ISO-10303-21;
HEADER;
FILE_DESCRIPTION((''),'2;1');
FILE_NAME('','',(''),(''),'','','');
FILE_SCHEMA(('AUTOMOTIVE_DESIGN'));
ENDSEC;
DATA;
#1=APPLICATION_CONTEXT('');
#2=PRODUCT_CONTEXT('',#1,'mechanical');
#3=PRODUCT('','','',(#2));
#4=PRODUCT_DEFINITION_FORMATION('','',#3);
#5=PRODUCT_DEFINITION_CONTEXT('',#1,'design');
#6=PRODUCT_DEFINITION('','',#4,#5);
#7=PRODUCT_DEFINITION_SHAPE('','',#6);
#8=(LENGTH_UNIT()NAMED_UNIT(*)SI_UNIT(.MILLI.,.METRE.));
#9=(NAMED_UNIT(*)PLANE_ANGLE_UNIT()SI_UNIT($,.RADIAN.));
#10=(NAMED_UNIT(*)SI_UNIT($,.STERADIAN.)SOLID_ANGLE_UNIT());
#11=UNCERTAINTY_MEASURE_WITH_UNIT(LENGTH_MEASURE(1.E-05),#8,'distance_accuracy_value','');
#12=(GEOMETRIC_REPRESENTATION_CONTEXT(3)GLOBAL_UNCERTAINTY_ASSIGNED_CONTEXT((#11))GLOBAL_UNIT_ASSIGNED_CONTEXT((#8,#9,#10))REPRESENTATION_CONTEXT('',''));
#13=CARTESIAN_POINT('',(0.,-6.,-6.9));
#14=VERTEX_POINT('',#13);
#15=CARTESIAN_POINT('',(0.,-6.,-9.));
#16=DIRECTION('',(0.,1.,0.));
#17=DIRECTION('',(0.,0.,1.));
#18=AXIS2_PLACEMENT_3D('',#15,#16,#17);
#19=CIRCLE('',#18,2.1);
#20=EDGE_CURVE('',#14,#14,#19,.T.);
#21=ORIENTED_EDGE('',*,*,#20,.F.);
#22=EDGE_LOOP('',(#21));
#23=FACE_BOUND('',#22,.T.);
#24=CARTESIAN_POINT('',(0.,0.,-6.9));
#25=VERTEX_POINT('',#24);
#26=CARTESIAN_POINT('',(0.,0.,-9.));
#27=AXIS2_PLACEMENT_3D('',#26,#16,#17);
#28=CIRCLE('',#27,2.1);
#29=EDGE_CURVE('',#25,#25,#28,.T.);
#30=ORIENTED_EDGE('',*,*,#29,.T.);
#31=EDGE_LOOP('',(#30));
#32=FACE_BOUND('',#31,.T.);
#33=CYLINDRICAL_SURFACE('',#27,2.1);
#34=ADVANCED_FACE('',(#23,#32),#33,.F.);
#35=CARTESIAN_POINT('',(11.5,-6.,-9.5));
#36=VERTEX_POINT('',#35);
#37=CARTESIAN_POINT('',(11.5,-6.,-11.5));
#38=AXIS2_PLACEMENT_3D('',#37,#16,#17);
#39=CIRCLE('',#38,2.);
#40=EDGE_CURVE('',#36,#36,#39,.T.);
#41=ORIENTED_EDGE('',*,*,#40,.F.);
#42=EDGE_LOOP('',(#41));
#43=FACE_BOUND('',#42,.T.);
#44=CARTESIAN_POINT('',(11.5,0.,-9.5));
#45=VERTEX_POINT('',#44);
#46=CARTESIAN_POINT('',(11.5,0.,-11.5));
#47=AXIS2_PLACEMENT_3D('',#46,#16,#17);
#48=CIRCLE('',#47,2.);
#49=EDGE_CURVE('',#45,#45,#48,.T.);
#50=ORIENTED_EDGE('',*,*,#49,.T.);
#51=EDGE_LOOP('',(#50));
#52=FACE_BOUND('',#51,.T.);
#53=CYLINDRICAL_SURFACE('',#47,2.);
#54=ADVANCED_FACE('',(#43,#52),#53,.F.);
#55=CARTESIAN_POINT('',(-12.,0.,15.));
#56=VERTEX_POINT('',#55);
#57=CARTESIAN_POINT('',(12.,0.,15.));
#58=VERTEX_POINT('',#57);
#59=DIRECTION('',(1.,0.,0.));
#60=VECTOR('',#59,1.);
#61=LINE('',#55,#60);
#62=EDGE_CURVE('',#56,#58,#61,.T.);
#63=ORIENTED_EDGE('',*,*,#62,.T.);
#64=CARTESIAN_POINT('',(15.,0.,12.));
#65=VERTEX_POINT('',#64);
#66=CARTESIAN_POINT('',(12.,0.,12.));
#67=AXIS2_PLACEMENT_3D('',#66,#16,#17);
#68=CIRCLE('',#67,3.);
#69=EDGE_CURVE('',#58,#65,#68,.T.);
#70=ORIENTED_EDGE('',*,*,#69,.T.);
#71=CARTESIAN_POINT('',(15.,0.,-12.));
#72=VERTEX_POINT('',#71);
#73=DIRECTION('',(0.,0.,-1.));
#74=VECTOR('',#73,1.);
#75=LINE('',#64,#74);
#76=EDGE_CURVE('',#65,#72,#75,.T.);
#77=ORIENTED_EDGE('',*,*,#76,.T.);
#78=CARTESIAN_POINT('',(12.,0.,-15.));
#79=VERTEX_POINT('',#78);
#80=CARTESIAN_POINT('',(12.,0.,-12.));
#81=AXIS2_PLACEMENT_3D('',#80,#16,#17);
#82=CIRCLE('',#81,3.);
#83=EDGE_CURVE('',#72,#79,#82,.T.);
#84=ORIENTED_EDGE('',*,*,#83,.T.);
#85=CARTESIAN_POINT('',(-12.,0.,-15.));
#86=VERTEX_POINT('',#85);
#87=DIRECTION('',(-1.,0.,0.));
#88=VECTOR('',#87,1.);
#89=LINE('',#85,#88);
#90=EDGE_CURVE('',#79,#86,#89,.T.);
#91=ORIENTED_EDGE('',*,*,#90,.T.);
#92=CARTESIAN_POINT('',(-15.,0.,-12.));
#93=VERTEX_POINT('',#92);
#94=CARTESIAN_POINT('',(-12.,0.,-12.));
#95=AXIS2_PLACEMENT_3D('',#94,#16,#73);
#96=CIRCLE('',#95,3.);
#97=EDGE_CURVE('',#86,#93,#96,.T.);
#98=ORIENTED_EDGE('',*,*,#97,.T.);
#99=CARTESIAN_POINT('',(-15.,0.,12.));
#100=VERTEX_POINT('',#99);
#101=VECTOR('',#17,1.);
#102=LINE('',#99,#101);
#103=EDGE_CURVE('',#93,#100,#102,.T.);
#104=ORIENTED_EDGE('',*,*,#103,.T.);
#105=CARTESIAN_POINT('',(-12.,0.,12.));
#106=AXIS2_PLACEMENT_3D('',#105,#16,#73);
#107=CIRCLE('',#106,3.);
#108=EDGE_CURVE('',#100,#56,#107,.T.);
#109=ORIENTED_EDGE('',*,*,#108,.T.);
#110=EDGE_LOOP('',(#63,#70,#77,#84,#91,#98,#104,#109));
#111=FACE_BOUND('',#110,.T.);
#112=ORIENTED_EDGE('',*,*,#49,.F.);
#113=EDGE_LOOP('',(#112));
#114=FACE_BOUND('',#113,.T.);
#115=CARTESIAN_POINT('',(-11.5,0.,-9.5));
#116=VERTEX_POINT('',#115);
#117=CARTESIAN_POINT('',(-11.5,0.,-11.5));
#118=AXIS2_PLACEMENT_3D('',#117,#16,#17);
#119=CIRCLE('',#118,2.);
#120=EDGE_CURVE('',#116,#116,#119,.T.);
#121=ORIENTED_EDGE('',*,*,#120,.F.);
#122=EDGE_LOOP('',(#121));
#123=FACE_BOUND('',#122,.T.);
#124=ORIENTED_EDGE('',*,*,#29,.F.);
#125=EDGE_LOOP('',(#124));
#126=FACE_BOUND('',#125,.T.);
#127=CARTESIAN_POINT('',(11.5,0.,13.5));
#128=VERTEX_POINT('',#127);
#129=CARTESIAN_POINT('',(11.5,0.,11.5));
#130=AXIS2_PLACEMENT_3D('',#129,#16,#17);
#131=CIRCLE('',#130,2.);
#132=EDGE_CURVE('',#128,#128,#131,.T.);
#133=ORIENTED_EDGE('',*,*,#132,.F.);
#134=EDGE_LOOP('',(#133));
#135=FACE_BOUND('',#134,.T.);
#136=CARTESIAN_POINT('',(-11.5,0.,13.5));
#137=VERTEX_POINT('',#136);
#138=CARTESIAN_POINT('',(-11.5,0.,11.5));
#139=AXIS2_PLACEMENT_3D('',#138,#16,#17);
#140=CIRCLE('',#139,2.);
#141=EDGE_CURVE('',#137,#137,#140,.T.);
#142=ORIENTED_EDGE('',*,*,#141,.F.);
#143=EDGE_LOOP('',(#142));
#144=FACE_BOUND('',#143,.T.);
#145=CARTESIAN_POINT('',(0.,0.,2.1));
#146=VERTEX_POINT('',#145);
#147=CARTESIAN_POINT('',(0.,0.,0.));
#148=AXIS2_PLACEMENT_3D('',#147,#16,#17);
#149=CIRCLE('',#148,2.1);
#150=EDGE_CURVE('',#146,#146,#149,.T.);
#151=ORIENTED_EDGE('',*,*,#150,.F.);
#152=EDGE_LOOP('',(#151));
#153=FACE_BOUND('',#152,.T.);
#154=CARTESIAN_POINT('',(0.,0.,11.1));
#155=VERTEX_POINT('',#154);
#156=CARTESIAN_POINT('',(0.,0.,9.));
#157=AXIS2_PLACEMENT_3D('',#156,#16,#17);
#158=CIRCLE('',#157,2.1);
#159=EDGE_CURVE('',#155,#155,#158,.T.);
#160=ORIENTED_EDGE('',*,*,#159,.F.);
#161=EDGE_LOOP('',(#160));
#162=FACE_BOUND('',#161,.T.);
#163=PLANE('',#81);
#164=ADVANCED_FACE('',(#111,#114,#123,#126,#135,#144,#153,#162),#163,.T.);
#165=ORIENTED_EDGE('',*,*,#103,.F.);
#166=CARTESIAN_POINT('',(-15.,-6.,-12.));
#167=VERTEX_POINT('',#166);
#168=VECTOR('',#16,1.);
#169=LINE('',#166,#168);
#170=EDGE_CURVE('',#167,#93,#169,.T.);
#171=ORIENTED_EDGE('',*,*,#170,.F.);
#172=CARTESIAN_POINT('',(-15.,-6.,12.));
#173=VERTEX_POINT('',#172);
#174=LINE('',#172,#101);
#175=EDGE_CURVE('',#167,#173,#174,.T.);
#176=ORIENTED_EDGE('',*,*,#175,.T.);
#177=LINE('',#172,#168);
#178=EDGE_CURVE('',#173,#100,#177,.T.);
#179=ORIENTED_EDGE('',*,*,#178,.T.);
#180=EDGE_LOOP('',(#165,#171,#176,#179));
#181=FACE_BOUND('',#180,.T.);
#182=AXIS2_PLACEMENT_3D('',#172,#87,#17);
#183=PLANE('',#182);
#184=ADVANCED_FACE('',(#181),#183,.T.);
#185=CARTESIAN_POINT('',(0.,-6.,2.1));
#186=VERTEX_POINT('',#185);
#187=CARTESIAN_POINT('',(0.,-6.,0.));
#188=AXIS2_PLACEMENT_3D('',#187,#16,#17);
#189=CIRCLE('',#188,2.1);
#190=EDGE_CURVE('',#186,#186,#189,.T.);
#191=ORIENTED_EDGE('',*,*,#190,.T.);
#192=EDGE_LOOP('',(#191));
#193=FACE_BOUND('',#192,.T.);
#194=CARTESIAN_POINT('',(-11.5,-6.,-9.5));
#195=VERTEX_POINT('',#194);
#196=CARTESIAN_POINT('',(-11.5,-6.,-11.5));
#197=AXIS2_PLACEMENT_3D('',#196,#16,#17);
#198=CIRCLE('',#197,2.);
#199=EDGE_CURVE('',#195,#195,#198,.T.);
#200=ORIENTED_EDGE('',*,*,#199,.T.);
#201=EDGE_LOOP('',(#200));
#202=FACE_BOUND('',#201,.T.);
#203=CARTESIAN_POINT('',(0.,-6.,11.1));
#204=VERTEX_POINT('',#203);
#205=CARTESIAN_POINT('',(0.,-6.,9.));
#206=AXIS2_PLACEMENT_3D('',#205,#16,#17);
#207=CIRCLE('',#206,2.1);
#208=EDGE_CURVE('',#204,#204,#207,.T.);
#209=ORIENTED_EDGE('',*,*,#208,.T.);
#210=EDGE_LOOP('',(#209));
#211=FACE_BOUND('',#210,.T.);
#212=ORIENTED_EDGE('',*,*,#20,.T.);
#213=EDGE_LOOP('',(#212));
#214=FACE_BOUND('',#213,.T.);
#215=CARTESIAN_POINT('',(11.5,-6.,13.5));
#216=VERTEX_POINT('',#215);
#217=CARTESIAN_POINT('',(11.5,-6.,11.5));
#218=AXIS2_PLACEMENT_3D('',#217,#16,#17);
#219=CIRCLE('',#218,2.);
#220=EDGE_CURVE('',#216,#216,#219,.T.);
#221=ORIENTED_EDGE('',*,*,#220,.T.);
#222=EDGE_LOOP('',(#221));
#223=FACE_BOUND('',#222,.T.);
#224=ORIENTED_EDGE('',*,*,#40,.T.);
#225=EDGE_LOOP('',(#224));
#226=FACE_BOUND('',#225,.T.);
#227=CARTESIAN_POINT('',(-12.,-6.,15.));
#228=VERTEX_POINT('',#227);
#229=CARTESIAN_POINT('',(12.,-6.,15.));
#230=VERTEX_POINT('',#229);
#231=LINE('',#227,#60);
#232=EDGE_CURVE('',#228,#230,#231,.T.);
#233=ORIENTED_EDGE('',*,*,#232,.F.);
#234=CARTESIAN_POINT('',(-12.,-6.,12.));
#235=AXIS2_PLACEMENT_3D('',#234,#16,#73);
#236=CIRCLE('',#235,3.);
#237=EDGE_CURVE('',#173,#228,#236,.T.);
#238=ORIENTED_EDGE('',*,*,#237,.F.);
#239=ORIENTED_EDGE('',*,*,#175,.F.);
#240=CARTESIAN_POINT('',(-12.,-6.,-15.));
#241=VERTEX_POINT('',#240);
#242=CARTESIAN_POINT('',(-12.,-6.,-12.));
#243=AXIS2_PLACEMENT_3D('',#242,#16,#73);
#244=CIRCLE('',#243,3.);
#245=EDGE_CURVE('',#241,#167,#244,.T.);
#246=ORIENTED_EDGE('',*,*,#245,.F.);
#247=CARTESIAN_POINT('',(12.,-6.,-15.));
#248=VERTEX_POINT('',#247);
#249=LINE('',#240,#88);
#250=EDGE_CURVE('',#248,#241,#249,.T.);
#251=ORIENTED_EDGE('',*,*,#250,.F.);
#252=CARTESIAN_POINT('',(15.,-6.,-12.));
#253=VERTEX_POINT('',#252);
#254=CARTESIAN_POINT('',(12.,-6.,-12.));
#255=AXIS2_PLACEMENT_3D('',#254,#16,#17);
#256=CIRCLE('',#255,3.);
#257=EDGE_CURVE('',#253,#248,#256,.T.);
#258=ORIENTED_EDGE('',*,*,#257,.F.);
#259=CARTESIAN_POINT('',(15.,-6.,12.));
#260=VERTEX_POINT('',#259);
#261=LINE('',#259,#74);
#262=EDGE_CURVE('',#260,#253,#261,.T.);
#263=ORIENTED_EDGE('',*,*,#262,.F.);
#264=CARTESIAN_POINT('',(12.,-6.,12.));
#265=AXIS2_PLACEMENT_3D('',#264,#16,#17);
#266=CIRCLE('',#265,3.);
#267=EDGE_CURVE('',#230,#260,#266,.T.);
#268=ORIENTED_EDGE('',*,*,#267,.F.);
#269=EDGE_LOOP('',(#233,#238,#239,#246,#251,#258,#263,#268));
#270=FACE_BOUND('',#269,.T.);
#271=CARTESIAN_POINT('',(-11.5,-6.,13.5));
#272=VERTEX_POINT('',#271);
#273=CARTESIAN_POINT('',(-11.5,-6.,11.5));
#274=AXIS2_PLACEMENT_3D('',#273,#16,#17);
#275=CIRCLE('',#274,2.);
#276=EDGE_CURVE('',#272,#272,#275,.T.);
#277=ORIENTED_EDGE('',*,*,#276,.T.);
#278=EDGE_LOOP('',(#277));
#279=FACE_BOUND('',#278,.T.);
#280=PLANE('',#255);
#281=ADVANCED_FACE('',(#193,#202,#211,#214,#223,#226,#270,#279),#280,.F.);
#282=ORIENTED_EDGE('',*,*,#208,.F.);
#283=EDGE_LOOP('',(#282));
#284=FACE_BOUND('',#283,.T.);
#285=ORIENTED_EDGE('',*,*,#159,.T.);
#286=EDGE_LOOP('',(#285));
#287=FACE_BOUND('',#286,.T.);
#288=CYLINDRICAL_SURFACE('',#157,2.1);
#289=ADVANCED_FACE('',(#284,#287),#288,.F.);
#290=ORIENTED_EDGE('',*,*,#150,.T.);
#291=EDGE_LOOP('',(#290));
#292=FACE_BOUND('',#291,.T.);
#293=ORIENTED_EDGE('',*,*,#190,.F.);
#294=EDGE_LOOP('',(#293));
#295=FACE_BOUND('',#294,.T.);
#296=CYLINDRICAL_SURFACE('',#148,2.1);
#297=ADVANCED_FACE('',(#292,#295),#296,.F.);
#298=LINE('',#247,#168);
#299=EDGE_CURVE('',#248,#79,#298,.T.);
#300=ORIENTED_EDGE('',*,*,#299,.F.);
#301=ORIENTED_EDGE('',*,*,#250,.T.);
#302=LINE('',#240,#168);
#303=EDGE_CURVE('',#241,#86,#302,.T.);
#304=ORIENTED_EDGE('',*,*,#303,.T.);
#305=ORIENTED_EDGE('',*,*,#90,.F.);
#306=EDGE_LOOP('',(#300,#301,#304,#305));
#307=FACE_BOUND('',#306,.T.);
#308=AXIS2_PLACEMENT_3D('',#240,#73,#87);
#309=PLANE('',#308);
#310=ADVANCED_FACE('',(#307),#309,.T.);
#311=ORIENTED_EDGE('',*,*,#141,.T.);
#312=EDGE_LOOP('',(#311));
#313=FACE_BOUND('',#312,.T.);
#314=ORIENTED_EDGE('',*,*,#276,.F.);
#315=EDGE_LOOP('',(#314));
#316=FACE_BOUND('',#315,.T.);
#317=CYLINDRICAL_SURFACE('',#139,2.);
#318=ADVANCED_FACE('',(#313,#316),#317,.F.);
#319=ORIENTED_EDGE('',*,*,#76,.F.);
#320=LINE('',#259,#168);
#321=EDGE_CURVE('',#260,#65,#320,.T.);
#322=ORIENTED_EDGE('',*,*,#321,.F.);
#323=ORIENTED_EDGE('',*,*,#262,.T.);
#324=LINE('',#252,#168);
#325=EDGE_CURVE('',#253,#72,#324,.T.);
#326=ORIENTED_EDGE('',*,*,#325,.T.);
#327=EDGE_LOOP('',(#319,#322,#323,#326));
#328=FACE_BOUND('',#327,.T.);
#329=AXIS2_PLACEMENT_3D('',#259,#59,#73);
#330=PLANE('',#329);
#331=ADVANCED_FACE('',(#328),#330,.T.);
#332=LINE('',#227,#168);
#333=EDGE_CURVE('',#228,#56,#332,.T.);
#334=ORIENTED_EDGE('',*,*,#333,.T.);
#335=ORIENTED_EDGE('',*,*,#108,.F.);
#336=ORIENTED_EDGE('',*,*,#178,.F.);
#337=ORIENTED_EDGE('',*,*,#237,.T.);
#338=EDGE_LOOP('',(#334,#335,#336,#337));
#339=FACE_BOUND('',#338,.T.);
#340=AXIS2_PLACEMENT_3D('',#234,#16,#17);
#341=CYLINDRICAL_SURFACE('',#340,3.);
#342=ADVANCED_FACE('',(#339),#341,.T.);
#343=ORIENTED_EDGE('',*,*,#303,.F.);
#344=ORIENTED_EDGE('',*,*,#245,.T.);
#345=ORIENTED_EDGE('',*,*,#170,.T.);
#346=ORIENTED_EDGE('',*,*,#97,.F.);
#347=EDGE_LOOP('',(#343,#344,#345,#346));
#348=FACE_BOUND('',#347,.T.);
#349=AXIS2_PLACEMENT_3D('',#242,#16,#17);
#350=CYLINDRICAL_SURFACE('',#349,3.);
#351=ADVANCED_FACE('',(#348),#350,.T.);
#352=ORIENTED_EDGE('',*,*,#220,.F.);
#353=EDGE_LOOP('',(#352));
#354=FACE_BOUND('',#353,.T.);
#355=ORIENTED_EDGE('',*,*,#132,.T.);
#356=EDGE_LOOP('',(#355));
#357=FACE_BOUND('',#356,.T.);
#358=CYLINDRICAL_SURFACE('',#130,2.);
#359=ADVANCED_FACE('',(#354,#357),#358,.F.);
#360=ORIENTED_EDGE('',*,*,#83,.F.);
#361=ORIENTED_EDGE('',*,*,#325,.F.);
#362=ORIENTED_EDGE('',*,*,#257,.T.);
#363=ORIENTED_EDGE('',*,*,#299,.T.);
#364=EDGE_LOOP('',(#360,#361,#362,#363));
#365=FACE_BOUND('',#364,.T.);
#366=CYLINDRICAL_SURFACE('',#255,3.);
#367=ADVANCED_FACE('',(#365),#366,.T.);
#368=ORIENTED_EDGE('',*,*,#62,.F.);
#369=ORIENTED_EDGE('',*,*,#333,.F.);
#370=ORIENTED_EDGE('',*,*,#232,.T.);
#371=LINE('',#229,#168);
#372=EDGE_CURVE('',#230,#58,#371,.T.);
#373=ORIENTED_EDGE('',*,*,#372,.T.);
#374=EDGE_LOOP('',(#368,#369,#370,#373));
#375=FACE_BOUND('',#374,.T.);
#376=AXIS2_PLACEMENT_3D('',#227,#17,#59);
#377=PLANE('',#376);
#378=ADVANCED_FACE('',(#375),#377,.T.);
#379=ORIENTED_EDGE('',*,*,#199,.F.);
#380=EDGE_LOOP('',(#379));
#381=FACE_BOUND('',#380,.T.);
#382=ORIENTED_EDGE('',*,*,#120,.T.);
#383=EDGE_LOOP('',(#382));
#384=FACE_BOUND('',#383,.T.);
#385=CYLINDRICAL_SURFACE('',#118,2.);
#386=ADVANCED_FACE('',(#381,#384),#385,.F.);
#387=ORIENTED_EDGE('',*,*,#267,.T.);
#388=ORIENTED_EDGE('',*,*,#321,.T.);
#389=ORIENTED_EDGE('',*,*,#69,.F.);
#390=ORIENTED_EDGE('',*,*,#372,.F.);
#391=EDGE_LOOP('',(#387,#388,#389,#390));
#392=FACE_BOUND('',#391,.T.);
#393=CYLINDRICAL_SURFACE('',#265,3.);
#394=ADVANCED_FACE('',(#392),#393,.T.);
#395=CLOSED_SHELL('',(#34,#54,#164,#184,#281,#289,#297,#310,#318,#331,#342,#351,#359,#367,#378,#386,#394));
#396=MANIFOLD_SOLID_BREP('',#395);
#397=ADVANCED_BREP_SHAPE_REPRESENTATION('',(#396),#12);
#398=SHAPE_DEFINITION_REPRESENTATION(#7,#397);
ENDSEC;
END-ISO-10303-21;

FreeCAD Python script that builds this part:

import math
import FreeCAD as App
import Part
import Sketcher
Q = App.Units.Quantity

doc = App.newDocument("Part")
params = doc.addObject("Spreadsheet::Sheet", "Params")
for row, (alias, value) in enumerate([
    ("sketch1_radius", "3 mm"),
    ("sketch1_width", "24 mm"),
    ("pad1_length", "6 mm"),
    ("sketch2_diameter", "4.2 mm"),
    ("hole_diameter", "4.2 mm"),
    ("sketch3_diameter", "4 mm"),
    ("hole2_diameter", "4 mm"),
    ("hole2_depth", "10 mm"),
], start=1):
    params.set(f"A{row}", alias)
    params.set(f"B{row}", "=" + value)
    params.setAlias(f"B{row}", alias)

body = doc.addObject("PartDesign::Body", "Body")

# Sketch on XZ plane
sketch1 = body.newObject("Sketcher::SketchObject", "Sketch")
sketch1.AttachmentSupport = (doc.getObject("XZ_Plane"), [""])
sketch1.MapMode = "FlatFace"
sketch1.addGeometry(Part.LineSegment(App.Vector(-12, 15, 0), App.Vector(12, 15, 0)), False)
sketch1.addGeometry(Part.ArcOfCircle(Part.Circle(App.Vector(12, 12, 0), App.Vector(0, 0, 1), 3), math.radians(0), math.radians(90)), False)
sketch1.addGeometry(Part.LineSegment(App.Vector(15, 12, 0), App.Vector(15, -12, 0)), False)
sketch1.addGeometry(Part.ArcOfCircle(Part.Circle(App.Vector(12, -12, 0), App.Vector(0, 0, 1), 3), math.radians(-90), math.radians(0)), False)
sketch1.addGeometry(Part.LineSegment(App.Vector(12, -15, 0), App.Vector(-12, -15, 0)), False)
sketch1.addGeometry(Part.ArcOfCircle(Part.Circle(App.Vector(-12, -12, 0), App.Vector(0, 0, 1), 3), math.radians(180), math.radians(270)), False)
sketch1.addGeometry(Part.LineSegment(App.Vector(-15, -12, 0), App.Vector(-15, 12, 0)), False)
sketch1.addGeometry(Part.ArcOfCircle(Part.Circle(App.Vector(-12, 12, 0), App.Vector(0, 0, 1), 3), math.radians(90), math.radians(180)), False)
sketch1.addConstraint(Sketcher.Constraint("Tangent", 0, 2, 1, 2))
sketch1.addConstraint(Sketcher.Constraint("Tangent", 1, 1, 2, 1))
sketch1.addConstraint(Sketcher.Constraint("Tangent", 2, 2, 3, 2))
sketch1.addConstraint(Sketcher.Constraint("Tangent", 3, 1, 4, 1))
sketch1.addConstraint(Sketcher.Constraint("Tangent", 4, 2, 5, 2))
sketch1.addConstraint(Sketcher.Constraint("Tangent", 5, 1, 6, 1))
sketch1.addConstraint(Sketcher.Constraint("Tangent", 6, 2, 7, 2))
sketch1.addConstraint(Sketcher.Constraint("Tangent", 7, 1, 0, 1))
sketch1.addConstraint(Sketcher.Constraint("Horizontal", 0))
sketch1.addConstraint(Sketcher.Constraint("Vertical", 2))
sketch1.addConstraint(Sketcher.Constraint("Horizontal", 4))
sketch1.addConstraint(Sketcher.Constraint("Vertical", 6))
sketch1.addConstraint(Sketcher.Constraint("Equal", 1, 3))
sketch1.addConstraint(Sketcher.Constraint("Equal", 3, 5))
sketch1.addConstraint(Sketcher.Constraint("Equal", 5, 7))
sketch1.addConstraint(Sketcher.Constraint("Symmetric", 1, 3, 5, 3, -1, 1))
sketch1.addConstraint(Sketcher.Constraint("Equal", 4, 2))
sketch1.addConstraint(Sketcher.Constraint("Radius", 1, Q("3 mm")))
sketch1.addConstraint(Sketcher.Constraint("DistanceX", 0, 1, 0, 2, Q("24 mm")))
sketch1.setExpression("Constraints[17]", "Params.sketch1_radius")
sketch1.setExpression("Constraints[18]", "Params.sketch1_width")
pad1 = body.newObject("PartDesign::Pad", "Pad")
pad1.Profile = sketch1
pad1.setExpression("Length", "Params.pad1_length")

# Sketch on XZ plane
sketch2 = body.newObject("Sketcher::SketchObject", "Sketch001")
sketch2.AttachmentSupport = (doc.getObject("XZ_Plane"), [""])
sketch2.MapMode = "FlatFace"
sketch2.addGeometry(Part.Circle(App.Vector(0, 0, 0), App.Vector(0, 0, 1), 2.1), False)
sketch2.addGeometry(Part.Circle(App.Vector(0, -9, 0), App.Vector(0, 0, 1), 2.1), False)
sketch2.addGeometry(Part.Circle(App.Vector(0, 9, 0), App.Vector(0, 0, 1), 2.1), False)
sketch2.addConstraint(Sketcher.Constraint("Coincident", 0, 3, -1, 1))
sketch2.addConstraint(Sketcher.Constraint("Equal", 0, 1))
sketch2.addConstraint(Sketcher.Constraint("Equal", 1, 2))
sketch2.addConstraint(Sketcher.Constraint("Symmetric", 1, 3, 2, 3, -1, 1))
sketch2.addConstraint(Sketcher.Constraint("PointOnObject", 1, 3, -2))
sketch2.addConstraint(Sketcher.Constraint("Diameter", 0, Q("4.2 mm")))
sketch2.addConstraint(Sketcher.Constraint("DistanceY", 1, 3, -1, 1, Q("9 mm")))
sketch2.setExpression("Constraints[5]", "Params.sketch2_diameter")
doc.recompute()
hole = body.newObject("PartDesign::Hole", "Hole")
hole.Profile = sketch2
hole.ThreadType = "None"
hole.setExpression("Diameter", "Params.hole_diameter")
hole.DepthType = "ThroughAll"
hole.Reversed = True

# Sketch on XZ plane
sketch3 = body.newObject("Sketcher::SketchObject", "Sketch002")
sketch3.AttachmentSupport = (doc.getObject("XZ_Plane"), [""])
sketch3.MapMode = "FlatFace"
sketch3.addGeometry(Part.Circle(App.Vector(-11.5, 11.5, 0), App.Vector(0, 0, 1), 2), False)
sketch3.addGeometry(Part.Circle(App.Vector(-11.5, -11.5, 0), App.Vector(0, 0, 1), 2), False)
sketch3.addGeometry(Part.Circle(App.Vector(11.5, -11.5, 0), App.Vector(0, 0, 1), 2), False)
sketch3.addGeometry(Part.Circle(App.Vector(11.5, 11.5, 0), App.Vector(0, 0, 1), 2), False)
sketch3.addConstraint(Sketcher.Constraint("Equal", 0, 1))
sketch3.addConstraint(Sketcher.Constraint("Equal", 1, 2))
sketch3.addConstraint(Sketcher.Constraint("Equal", 2, 3))
sketch3.addConstraint(Sketcher.Constraint("Symmetric", 0, 3, 2, 3, -1, 1))
sketch3.addConstraint(Sketcher.Constraint("Symmetric", 1, 3, 3, 3, -1, 1))
sketch3.addConstraint(Sketcher.Constraint("Symmetric", 1, 3, 2, 3, -2))
sketch3.addConstraint(Sketcher.Constraint("Diameter", 0, Q("4 mm")))
sketch3.addConstraint(Sketcher.Constraint("DistanceY", 1, 3, 0, 3, Q("23 mm")))
sketch3.addConstraint(Sketcher.Constraint("DistanceX", 1, 3, 2, 3, Q("23 mm")))
sketch3.setExpression("Constraints[6]", "Params.sketch3_diameter")
doc.recompute()
hole2 = body.newObject("PartDesign::Hole", "Hole001")
hole2.Profile = sketch3
hole2.ThreadType = "None"
hole2.setExpression("Diameter", "Params.hole2_diameter")
hole2.DepthType = "Dimension"
hole2.setExpression("Depth", "Params.hole2_depth")
hole2.DrillPoint = "Angled"
hole2.DrillPointAngle = 118
hole2.Reversed = True

doc.recompute()
